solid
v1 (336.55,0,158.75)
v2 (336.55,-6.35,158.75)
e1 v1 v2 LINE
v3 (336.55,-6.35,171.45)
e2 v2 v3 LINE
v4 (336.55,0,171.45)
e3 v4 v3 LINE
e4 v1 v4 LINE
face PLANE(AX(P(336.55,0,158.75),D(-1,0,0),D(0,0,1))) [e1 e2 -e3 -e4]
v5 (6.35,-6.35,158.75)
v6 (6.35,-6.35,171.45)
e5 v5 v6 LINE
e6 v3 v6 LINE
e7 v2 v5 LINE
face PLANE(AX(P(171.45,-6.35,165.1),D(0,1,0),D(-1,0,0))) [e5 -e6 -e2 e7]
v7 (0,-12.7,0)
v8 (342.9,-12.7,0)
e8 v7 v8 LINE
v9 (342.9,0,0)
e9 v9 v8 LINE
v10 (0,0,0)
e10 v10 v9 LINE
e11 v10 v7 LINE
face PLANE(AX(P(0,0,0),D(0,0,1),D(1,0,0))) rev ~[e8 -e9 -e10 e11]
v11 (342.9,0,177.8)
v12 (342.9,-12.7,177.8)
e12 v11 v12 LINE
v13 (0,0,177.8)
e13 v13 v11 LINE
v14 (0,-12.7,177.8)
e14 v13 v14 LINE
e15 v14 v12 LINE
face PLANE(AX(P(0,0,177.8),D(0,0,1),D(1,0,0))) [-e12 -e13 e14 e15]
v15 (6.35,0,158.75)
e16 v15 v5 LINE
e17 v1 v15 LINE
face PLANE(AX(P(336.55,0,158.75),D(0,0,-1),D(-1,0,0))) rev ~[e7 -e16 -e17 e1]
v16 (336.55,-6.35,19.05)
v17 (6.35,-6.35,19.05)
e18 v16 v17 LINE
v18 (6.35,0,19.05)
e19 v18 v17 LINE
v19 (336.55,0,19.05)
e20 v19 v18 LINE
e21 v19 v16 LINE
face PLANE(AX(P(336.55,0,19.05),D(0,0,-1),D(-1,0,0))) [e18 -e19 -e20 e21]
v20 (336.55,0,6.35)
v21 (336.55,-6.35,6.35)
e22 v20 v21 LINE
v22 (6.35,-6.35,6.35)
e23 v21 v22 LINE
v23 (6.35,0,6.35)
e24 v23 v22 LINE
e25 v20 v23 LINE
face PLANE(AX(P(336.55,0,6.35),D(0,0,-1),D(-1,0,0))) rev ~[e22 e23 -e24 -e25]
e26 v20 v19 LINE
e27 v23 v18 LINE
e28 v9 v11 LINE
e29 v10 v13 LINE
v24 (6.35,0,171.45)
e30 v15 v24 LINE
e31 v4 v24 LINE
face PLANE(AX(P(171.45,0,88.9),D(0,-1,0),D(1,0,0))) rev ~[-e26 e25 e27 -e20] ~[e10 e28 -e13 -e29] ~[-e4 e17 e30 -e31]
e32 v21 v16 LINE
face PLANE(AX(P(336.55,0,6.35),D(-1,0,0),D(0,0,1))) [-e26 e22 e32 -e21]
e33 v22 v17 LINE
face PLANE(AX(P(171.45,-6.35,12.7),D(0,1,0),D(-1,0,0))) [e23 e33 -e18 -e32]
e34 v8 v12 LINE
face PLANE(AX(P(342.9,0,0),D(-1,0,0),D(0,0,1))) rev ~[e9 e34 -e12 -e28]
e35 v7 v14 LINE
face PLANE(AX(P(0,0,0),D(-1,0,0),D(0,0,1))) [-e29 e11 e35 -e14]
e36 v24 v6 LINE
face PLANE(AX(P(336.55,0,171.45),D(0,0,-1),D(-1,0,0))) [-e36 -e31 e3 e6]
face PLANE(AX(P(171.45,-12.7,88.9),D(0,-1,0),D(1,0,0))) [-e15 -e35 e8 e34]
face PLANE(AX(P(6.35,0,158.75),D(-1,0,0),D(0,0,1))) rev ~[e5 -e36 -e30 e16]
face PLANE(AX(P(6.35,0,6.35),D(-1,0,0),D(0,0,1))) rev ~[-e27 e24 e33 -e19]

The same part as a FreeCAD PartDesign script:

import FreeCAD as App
import Part
import Sketcher
from FreeCAD import Vector
Q = App.Units.Quantity


def add_polygon(sketch, points):
    """Adds a closed chain of lines whose ends are joined by coincident constraints."""
    first, n = sketch.GeometryCount, len(points)
    for a, b in zip(points, points[1:] + points[:1]):
        sketch.addGeometry(Part.LineSegment(App.Vector(*a, 0), App.Vector(*b, 0)), False)
    for i in range(n):
        sketch.addConstraint(Sketcher.Constraint("Coincident", first + i, 2, first + (i + 1) % n, 1))

doc = App.newDocument("Part")
body = doc.addObject("PartDesign::Body", "Body")

sketch1 = body.newObject("Sketcher::SketchObject", "Sketch")
sketch1.AttachmentSupport = (doc.getObject("XZ_Plane"), [""])
sketch1.MapMode = "FlatFace"
add_polygon(sketch1, [(0, 178), (0, 0), (343, 0), (343, 178)])
sketch1.addConstraint(Sketcher.Constraint("Vertical", 0))
sketch1.addConstraint(Sketcher.Constraint("Horizontal", 1))
sketch1.addConstraint(Sketcher.Constraint("Vertical", 2))
sketch1.addConstraint(Sketcher.Constraint("Horizontal", 3))
sketch1.addConstraint(Sketcher.Constraint("Coincident", 0, 2, -1, 1))
sketch1.addConstraint(Sketcher.Constraint("DistanceY", 0, 2, 0, 1, Q("7 in")))
sketch1.addConstraint(Sketcher.Constraint("DistanceX", 1, 1, 1, 2, Q("13.5 in")))
pad1 = body.newObject("PartDesign::Pad", "Pad")
pad1.Profile = sketch1
pad1.Length = Q("0.5 in")

sketch2 = body.newObject("Sketcher::SketchObject", "Sketch001")
sketch2.AttachmentSupport = (doc.getObject("XZ_Plane"), [""])
sketch2.MapMode = "FlatFace"
add_polygon(sketch2, [(337, 19), (337, 6), (6, 6), (6, 19)])
sketch2.addConstraint(Sketcher.Constraint("Vertical", 0))
sketch2.addConstraint(Sketcher.Constraint("Horizontal", 1))
sketch2.addConstraint(Sketcher.Constraint("Vertical", 2))
sketch2.addConstraint(Sketcher.Constraint("Horizontal", 3))
sketch2.addConstraint(Sketcher.Constraint("DistanceX", 1, 2, 1, 1, Q("13 in")))
sketch2.addConstraint(Sketcher.Constraint("DistanceY", 0, 2, 0, 1, Q("0.5 in")))
sketch2.addConstraint(Sketcher.Constraint("DistanceX", -1, 1, 0, 2, Q("13.25 in")))
sketch2.addConstraint(Sketcher.Constraint("DistanceY", -1, 1, 0, 2, Q("0.25 in")))
pocket1 = body.newObject("PartDesign::Pocket", "Pocket")
pocket1.Profile = sketch2
pocket1.Length = Q("0.25 in")
pocket1.Reversed = True

sketch3 = body.newObject("Sketcher::SketchObject", "Sketch002")
sketch3.AttachmentSupport = (doc.getObject("XZ_Plane"), [""])
sketch3.MapMode = "FlatFace"
add_polygon(sketch3, [(337, 171), (337, 159), (6, 159), (6, 171)])
sketch3.addConstraint(Sketcher.Constraint("Vertical", 0))
sketch3.addConstraint(Sketcher.Constraint("Horizontal", 1))
sketch3.addConstraint(Sketcher.Constraint("Vertical", 2))
sketch3.addConstraint(Sketcher.Constraint("Horizontal", 3))
sketch3.addConstraint(Sketcher.Constraint("DistanceX", 1, 2, 1, 1, Q("13 in")))
sketch3.addConstraint(Sketcher.Constraint("DistanceY", 0, 2, 0, 1, Q("0.5 in")))
sketch3.addConstraint(Sketcher.Constraint("DistanceX", -1, 1, 0, 2, Q("13.25 in")))
sketch3.addConstraint(Sketcher.Constraint("DistanceY", -1, 1, 0, 2, Q("6.25 in")))
pocket2 = body.newObject("PartDesign::Pocket", "Pocket001")
pocket2.Profile = sketch3
pocket2.Length = Q("0.25 in")
pocket2.Reversed = True

doc.recompute()
